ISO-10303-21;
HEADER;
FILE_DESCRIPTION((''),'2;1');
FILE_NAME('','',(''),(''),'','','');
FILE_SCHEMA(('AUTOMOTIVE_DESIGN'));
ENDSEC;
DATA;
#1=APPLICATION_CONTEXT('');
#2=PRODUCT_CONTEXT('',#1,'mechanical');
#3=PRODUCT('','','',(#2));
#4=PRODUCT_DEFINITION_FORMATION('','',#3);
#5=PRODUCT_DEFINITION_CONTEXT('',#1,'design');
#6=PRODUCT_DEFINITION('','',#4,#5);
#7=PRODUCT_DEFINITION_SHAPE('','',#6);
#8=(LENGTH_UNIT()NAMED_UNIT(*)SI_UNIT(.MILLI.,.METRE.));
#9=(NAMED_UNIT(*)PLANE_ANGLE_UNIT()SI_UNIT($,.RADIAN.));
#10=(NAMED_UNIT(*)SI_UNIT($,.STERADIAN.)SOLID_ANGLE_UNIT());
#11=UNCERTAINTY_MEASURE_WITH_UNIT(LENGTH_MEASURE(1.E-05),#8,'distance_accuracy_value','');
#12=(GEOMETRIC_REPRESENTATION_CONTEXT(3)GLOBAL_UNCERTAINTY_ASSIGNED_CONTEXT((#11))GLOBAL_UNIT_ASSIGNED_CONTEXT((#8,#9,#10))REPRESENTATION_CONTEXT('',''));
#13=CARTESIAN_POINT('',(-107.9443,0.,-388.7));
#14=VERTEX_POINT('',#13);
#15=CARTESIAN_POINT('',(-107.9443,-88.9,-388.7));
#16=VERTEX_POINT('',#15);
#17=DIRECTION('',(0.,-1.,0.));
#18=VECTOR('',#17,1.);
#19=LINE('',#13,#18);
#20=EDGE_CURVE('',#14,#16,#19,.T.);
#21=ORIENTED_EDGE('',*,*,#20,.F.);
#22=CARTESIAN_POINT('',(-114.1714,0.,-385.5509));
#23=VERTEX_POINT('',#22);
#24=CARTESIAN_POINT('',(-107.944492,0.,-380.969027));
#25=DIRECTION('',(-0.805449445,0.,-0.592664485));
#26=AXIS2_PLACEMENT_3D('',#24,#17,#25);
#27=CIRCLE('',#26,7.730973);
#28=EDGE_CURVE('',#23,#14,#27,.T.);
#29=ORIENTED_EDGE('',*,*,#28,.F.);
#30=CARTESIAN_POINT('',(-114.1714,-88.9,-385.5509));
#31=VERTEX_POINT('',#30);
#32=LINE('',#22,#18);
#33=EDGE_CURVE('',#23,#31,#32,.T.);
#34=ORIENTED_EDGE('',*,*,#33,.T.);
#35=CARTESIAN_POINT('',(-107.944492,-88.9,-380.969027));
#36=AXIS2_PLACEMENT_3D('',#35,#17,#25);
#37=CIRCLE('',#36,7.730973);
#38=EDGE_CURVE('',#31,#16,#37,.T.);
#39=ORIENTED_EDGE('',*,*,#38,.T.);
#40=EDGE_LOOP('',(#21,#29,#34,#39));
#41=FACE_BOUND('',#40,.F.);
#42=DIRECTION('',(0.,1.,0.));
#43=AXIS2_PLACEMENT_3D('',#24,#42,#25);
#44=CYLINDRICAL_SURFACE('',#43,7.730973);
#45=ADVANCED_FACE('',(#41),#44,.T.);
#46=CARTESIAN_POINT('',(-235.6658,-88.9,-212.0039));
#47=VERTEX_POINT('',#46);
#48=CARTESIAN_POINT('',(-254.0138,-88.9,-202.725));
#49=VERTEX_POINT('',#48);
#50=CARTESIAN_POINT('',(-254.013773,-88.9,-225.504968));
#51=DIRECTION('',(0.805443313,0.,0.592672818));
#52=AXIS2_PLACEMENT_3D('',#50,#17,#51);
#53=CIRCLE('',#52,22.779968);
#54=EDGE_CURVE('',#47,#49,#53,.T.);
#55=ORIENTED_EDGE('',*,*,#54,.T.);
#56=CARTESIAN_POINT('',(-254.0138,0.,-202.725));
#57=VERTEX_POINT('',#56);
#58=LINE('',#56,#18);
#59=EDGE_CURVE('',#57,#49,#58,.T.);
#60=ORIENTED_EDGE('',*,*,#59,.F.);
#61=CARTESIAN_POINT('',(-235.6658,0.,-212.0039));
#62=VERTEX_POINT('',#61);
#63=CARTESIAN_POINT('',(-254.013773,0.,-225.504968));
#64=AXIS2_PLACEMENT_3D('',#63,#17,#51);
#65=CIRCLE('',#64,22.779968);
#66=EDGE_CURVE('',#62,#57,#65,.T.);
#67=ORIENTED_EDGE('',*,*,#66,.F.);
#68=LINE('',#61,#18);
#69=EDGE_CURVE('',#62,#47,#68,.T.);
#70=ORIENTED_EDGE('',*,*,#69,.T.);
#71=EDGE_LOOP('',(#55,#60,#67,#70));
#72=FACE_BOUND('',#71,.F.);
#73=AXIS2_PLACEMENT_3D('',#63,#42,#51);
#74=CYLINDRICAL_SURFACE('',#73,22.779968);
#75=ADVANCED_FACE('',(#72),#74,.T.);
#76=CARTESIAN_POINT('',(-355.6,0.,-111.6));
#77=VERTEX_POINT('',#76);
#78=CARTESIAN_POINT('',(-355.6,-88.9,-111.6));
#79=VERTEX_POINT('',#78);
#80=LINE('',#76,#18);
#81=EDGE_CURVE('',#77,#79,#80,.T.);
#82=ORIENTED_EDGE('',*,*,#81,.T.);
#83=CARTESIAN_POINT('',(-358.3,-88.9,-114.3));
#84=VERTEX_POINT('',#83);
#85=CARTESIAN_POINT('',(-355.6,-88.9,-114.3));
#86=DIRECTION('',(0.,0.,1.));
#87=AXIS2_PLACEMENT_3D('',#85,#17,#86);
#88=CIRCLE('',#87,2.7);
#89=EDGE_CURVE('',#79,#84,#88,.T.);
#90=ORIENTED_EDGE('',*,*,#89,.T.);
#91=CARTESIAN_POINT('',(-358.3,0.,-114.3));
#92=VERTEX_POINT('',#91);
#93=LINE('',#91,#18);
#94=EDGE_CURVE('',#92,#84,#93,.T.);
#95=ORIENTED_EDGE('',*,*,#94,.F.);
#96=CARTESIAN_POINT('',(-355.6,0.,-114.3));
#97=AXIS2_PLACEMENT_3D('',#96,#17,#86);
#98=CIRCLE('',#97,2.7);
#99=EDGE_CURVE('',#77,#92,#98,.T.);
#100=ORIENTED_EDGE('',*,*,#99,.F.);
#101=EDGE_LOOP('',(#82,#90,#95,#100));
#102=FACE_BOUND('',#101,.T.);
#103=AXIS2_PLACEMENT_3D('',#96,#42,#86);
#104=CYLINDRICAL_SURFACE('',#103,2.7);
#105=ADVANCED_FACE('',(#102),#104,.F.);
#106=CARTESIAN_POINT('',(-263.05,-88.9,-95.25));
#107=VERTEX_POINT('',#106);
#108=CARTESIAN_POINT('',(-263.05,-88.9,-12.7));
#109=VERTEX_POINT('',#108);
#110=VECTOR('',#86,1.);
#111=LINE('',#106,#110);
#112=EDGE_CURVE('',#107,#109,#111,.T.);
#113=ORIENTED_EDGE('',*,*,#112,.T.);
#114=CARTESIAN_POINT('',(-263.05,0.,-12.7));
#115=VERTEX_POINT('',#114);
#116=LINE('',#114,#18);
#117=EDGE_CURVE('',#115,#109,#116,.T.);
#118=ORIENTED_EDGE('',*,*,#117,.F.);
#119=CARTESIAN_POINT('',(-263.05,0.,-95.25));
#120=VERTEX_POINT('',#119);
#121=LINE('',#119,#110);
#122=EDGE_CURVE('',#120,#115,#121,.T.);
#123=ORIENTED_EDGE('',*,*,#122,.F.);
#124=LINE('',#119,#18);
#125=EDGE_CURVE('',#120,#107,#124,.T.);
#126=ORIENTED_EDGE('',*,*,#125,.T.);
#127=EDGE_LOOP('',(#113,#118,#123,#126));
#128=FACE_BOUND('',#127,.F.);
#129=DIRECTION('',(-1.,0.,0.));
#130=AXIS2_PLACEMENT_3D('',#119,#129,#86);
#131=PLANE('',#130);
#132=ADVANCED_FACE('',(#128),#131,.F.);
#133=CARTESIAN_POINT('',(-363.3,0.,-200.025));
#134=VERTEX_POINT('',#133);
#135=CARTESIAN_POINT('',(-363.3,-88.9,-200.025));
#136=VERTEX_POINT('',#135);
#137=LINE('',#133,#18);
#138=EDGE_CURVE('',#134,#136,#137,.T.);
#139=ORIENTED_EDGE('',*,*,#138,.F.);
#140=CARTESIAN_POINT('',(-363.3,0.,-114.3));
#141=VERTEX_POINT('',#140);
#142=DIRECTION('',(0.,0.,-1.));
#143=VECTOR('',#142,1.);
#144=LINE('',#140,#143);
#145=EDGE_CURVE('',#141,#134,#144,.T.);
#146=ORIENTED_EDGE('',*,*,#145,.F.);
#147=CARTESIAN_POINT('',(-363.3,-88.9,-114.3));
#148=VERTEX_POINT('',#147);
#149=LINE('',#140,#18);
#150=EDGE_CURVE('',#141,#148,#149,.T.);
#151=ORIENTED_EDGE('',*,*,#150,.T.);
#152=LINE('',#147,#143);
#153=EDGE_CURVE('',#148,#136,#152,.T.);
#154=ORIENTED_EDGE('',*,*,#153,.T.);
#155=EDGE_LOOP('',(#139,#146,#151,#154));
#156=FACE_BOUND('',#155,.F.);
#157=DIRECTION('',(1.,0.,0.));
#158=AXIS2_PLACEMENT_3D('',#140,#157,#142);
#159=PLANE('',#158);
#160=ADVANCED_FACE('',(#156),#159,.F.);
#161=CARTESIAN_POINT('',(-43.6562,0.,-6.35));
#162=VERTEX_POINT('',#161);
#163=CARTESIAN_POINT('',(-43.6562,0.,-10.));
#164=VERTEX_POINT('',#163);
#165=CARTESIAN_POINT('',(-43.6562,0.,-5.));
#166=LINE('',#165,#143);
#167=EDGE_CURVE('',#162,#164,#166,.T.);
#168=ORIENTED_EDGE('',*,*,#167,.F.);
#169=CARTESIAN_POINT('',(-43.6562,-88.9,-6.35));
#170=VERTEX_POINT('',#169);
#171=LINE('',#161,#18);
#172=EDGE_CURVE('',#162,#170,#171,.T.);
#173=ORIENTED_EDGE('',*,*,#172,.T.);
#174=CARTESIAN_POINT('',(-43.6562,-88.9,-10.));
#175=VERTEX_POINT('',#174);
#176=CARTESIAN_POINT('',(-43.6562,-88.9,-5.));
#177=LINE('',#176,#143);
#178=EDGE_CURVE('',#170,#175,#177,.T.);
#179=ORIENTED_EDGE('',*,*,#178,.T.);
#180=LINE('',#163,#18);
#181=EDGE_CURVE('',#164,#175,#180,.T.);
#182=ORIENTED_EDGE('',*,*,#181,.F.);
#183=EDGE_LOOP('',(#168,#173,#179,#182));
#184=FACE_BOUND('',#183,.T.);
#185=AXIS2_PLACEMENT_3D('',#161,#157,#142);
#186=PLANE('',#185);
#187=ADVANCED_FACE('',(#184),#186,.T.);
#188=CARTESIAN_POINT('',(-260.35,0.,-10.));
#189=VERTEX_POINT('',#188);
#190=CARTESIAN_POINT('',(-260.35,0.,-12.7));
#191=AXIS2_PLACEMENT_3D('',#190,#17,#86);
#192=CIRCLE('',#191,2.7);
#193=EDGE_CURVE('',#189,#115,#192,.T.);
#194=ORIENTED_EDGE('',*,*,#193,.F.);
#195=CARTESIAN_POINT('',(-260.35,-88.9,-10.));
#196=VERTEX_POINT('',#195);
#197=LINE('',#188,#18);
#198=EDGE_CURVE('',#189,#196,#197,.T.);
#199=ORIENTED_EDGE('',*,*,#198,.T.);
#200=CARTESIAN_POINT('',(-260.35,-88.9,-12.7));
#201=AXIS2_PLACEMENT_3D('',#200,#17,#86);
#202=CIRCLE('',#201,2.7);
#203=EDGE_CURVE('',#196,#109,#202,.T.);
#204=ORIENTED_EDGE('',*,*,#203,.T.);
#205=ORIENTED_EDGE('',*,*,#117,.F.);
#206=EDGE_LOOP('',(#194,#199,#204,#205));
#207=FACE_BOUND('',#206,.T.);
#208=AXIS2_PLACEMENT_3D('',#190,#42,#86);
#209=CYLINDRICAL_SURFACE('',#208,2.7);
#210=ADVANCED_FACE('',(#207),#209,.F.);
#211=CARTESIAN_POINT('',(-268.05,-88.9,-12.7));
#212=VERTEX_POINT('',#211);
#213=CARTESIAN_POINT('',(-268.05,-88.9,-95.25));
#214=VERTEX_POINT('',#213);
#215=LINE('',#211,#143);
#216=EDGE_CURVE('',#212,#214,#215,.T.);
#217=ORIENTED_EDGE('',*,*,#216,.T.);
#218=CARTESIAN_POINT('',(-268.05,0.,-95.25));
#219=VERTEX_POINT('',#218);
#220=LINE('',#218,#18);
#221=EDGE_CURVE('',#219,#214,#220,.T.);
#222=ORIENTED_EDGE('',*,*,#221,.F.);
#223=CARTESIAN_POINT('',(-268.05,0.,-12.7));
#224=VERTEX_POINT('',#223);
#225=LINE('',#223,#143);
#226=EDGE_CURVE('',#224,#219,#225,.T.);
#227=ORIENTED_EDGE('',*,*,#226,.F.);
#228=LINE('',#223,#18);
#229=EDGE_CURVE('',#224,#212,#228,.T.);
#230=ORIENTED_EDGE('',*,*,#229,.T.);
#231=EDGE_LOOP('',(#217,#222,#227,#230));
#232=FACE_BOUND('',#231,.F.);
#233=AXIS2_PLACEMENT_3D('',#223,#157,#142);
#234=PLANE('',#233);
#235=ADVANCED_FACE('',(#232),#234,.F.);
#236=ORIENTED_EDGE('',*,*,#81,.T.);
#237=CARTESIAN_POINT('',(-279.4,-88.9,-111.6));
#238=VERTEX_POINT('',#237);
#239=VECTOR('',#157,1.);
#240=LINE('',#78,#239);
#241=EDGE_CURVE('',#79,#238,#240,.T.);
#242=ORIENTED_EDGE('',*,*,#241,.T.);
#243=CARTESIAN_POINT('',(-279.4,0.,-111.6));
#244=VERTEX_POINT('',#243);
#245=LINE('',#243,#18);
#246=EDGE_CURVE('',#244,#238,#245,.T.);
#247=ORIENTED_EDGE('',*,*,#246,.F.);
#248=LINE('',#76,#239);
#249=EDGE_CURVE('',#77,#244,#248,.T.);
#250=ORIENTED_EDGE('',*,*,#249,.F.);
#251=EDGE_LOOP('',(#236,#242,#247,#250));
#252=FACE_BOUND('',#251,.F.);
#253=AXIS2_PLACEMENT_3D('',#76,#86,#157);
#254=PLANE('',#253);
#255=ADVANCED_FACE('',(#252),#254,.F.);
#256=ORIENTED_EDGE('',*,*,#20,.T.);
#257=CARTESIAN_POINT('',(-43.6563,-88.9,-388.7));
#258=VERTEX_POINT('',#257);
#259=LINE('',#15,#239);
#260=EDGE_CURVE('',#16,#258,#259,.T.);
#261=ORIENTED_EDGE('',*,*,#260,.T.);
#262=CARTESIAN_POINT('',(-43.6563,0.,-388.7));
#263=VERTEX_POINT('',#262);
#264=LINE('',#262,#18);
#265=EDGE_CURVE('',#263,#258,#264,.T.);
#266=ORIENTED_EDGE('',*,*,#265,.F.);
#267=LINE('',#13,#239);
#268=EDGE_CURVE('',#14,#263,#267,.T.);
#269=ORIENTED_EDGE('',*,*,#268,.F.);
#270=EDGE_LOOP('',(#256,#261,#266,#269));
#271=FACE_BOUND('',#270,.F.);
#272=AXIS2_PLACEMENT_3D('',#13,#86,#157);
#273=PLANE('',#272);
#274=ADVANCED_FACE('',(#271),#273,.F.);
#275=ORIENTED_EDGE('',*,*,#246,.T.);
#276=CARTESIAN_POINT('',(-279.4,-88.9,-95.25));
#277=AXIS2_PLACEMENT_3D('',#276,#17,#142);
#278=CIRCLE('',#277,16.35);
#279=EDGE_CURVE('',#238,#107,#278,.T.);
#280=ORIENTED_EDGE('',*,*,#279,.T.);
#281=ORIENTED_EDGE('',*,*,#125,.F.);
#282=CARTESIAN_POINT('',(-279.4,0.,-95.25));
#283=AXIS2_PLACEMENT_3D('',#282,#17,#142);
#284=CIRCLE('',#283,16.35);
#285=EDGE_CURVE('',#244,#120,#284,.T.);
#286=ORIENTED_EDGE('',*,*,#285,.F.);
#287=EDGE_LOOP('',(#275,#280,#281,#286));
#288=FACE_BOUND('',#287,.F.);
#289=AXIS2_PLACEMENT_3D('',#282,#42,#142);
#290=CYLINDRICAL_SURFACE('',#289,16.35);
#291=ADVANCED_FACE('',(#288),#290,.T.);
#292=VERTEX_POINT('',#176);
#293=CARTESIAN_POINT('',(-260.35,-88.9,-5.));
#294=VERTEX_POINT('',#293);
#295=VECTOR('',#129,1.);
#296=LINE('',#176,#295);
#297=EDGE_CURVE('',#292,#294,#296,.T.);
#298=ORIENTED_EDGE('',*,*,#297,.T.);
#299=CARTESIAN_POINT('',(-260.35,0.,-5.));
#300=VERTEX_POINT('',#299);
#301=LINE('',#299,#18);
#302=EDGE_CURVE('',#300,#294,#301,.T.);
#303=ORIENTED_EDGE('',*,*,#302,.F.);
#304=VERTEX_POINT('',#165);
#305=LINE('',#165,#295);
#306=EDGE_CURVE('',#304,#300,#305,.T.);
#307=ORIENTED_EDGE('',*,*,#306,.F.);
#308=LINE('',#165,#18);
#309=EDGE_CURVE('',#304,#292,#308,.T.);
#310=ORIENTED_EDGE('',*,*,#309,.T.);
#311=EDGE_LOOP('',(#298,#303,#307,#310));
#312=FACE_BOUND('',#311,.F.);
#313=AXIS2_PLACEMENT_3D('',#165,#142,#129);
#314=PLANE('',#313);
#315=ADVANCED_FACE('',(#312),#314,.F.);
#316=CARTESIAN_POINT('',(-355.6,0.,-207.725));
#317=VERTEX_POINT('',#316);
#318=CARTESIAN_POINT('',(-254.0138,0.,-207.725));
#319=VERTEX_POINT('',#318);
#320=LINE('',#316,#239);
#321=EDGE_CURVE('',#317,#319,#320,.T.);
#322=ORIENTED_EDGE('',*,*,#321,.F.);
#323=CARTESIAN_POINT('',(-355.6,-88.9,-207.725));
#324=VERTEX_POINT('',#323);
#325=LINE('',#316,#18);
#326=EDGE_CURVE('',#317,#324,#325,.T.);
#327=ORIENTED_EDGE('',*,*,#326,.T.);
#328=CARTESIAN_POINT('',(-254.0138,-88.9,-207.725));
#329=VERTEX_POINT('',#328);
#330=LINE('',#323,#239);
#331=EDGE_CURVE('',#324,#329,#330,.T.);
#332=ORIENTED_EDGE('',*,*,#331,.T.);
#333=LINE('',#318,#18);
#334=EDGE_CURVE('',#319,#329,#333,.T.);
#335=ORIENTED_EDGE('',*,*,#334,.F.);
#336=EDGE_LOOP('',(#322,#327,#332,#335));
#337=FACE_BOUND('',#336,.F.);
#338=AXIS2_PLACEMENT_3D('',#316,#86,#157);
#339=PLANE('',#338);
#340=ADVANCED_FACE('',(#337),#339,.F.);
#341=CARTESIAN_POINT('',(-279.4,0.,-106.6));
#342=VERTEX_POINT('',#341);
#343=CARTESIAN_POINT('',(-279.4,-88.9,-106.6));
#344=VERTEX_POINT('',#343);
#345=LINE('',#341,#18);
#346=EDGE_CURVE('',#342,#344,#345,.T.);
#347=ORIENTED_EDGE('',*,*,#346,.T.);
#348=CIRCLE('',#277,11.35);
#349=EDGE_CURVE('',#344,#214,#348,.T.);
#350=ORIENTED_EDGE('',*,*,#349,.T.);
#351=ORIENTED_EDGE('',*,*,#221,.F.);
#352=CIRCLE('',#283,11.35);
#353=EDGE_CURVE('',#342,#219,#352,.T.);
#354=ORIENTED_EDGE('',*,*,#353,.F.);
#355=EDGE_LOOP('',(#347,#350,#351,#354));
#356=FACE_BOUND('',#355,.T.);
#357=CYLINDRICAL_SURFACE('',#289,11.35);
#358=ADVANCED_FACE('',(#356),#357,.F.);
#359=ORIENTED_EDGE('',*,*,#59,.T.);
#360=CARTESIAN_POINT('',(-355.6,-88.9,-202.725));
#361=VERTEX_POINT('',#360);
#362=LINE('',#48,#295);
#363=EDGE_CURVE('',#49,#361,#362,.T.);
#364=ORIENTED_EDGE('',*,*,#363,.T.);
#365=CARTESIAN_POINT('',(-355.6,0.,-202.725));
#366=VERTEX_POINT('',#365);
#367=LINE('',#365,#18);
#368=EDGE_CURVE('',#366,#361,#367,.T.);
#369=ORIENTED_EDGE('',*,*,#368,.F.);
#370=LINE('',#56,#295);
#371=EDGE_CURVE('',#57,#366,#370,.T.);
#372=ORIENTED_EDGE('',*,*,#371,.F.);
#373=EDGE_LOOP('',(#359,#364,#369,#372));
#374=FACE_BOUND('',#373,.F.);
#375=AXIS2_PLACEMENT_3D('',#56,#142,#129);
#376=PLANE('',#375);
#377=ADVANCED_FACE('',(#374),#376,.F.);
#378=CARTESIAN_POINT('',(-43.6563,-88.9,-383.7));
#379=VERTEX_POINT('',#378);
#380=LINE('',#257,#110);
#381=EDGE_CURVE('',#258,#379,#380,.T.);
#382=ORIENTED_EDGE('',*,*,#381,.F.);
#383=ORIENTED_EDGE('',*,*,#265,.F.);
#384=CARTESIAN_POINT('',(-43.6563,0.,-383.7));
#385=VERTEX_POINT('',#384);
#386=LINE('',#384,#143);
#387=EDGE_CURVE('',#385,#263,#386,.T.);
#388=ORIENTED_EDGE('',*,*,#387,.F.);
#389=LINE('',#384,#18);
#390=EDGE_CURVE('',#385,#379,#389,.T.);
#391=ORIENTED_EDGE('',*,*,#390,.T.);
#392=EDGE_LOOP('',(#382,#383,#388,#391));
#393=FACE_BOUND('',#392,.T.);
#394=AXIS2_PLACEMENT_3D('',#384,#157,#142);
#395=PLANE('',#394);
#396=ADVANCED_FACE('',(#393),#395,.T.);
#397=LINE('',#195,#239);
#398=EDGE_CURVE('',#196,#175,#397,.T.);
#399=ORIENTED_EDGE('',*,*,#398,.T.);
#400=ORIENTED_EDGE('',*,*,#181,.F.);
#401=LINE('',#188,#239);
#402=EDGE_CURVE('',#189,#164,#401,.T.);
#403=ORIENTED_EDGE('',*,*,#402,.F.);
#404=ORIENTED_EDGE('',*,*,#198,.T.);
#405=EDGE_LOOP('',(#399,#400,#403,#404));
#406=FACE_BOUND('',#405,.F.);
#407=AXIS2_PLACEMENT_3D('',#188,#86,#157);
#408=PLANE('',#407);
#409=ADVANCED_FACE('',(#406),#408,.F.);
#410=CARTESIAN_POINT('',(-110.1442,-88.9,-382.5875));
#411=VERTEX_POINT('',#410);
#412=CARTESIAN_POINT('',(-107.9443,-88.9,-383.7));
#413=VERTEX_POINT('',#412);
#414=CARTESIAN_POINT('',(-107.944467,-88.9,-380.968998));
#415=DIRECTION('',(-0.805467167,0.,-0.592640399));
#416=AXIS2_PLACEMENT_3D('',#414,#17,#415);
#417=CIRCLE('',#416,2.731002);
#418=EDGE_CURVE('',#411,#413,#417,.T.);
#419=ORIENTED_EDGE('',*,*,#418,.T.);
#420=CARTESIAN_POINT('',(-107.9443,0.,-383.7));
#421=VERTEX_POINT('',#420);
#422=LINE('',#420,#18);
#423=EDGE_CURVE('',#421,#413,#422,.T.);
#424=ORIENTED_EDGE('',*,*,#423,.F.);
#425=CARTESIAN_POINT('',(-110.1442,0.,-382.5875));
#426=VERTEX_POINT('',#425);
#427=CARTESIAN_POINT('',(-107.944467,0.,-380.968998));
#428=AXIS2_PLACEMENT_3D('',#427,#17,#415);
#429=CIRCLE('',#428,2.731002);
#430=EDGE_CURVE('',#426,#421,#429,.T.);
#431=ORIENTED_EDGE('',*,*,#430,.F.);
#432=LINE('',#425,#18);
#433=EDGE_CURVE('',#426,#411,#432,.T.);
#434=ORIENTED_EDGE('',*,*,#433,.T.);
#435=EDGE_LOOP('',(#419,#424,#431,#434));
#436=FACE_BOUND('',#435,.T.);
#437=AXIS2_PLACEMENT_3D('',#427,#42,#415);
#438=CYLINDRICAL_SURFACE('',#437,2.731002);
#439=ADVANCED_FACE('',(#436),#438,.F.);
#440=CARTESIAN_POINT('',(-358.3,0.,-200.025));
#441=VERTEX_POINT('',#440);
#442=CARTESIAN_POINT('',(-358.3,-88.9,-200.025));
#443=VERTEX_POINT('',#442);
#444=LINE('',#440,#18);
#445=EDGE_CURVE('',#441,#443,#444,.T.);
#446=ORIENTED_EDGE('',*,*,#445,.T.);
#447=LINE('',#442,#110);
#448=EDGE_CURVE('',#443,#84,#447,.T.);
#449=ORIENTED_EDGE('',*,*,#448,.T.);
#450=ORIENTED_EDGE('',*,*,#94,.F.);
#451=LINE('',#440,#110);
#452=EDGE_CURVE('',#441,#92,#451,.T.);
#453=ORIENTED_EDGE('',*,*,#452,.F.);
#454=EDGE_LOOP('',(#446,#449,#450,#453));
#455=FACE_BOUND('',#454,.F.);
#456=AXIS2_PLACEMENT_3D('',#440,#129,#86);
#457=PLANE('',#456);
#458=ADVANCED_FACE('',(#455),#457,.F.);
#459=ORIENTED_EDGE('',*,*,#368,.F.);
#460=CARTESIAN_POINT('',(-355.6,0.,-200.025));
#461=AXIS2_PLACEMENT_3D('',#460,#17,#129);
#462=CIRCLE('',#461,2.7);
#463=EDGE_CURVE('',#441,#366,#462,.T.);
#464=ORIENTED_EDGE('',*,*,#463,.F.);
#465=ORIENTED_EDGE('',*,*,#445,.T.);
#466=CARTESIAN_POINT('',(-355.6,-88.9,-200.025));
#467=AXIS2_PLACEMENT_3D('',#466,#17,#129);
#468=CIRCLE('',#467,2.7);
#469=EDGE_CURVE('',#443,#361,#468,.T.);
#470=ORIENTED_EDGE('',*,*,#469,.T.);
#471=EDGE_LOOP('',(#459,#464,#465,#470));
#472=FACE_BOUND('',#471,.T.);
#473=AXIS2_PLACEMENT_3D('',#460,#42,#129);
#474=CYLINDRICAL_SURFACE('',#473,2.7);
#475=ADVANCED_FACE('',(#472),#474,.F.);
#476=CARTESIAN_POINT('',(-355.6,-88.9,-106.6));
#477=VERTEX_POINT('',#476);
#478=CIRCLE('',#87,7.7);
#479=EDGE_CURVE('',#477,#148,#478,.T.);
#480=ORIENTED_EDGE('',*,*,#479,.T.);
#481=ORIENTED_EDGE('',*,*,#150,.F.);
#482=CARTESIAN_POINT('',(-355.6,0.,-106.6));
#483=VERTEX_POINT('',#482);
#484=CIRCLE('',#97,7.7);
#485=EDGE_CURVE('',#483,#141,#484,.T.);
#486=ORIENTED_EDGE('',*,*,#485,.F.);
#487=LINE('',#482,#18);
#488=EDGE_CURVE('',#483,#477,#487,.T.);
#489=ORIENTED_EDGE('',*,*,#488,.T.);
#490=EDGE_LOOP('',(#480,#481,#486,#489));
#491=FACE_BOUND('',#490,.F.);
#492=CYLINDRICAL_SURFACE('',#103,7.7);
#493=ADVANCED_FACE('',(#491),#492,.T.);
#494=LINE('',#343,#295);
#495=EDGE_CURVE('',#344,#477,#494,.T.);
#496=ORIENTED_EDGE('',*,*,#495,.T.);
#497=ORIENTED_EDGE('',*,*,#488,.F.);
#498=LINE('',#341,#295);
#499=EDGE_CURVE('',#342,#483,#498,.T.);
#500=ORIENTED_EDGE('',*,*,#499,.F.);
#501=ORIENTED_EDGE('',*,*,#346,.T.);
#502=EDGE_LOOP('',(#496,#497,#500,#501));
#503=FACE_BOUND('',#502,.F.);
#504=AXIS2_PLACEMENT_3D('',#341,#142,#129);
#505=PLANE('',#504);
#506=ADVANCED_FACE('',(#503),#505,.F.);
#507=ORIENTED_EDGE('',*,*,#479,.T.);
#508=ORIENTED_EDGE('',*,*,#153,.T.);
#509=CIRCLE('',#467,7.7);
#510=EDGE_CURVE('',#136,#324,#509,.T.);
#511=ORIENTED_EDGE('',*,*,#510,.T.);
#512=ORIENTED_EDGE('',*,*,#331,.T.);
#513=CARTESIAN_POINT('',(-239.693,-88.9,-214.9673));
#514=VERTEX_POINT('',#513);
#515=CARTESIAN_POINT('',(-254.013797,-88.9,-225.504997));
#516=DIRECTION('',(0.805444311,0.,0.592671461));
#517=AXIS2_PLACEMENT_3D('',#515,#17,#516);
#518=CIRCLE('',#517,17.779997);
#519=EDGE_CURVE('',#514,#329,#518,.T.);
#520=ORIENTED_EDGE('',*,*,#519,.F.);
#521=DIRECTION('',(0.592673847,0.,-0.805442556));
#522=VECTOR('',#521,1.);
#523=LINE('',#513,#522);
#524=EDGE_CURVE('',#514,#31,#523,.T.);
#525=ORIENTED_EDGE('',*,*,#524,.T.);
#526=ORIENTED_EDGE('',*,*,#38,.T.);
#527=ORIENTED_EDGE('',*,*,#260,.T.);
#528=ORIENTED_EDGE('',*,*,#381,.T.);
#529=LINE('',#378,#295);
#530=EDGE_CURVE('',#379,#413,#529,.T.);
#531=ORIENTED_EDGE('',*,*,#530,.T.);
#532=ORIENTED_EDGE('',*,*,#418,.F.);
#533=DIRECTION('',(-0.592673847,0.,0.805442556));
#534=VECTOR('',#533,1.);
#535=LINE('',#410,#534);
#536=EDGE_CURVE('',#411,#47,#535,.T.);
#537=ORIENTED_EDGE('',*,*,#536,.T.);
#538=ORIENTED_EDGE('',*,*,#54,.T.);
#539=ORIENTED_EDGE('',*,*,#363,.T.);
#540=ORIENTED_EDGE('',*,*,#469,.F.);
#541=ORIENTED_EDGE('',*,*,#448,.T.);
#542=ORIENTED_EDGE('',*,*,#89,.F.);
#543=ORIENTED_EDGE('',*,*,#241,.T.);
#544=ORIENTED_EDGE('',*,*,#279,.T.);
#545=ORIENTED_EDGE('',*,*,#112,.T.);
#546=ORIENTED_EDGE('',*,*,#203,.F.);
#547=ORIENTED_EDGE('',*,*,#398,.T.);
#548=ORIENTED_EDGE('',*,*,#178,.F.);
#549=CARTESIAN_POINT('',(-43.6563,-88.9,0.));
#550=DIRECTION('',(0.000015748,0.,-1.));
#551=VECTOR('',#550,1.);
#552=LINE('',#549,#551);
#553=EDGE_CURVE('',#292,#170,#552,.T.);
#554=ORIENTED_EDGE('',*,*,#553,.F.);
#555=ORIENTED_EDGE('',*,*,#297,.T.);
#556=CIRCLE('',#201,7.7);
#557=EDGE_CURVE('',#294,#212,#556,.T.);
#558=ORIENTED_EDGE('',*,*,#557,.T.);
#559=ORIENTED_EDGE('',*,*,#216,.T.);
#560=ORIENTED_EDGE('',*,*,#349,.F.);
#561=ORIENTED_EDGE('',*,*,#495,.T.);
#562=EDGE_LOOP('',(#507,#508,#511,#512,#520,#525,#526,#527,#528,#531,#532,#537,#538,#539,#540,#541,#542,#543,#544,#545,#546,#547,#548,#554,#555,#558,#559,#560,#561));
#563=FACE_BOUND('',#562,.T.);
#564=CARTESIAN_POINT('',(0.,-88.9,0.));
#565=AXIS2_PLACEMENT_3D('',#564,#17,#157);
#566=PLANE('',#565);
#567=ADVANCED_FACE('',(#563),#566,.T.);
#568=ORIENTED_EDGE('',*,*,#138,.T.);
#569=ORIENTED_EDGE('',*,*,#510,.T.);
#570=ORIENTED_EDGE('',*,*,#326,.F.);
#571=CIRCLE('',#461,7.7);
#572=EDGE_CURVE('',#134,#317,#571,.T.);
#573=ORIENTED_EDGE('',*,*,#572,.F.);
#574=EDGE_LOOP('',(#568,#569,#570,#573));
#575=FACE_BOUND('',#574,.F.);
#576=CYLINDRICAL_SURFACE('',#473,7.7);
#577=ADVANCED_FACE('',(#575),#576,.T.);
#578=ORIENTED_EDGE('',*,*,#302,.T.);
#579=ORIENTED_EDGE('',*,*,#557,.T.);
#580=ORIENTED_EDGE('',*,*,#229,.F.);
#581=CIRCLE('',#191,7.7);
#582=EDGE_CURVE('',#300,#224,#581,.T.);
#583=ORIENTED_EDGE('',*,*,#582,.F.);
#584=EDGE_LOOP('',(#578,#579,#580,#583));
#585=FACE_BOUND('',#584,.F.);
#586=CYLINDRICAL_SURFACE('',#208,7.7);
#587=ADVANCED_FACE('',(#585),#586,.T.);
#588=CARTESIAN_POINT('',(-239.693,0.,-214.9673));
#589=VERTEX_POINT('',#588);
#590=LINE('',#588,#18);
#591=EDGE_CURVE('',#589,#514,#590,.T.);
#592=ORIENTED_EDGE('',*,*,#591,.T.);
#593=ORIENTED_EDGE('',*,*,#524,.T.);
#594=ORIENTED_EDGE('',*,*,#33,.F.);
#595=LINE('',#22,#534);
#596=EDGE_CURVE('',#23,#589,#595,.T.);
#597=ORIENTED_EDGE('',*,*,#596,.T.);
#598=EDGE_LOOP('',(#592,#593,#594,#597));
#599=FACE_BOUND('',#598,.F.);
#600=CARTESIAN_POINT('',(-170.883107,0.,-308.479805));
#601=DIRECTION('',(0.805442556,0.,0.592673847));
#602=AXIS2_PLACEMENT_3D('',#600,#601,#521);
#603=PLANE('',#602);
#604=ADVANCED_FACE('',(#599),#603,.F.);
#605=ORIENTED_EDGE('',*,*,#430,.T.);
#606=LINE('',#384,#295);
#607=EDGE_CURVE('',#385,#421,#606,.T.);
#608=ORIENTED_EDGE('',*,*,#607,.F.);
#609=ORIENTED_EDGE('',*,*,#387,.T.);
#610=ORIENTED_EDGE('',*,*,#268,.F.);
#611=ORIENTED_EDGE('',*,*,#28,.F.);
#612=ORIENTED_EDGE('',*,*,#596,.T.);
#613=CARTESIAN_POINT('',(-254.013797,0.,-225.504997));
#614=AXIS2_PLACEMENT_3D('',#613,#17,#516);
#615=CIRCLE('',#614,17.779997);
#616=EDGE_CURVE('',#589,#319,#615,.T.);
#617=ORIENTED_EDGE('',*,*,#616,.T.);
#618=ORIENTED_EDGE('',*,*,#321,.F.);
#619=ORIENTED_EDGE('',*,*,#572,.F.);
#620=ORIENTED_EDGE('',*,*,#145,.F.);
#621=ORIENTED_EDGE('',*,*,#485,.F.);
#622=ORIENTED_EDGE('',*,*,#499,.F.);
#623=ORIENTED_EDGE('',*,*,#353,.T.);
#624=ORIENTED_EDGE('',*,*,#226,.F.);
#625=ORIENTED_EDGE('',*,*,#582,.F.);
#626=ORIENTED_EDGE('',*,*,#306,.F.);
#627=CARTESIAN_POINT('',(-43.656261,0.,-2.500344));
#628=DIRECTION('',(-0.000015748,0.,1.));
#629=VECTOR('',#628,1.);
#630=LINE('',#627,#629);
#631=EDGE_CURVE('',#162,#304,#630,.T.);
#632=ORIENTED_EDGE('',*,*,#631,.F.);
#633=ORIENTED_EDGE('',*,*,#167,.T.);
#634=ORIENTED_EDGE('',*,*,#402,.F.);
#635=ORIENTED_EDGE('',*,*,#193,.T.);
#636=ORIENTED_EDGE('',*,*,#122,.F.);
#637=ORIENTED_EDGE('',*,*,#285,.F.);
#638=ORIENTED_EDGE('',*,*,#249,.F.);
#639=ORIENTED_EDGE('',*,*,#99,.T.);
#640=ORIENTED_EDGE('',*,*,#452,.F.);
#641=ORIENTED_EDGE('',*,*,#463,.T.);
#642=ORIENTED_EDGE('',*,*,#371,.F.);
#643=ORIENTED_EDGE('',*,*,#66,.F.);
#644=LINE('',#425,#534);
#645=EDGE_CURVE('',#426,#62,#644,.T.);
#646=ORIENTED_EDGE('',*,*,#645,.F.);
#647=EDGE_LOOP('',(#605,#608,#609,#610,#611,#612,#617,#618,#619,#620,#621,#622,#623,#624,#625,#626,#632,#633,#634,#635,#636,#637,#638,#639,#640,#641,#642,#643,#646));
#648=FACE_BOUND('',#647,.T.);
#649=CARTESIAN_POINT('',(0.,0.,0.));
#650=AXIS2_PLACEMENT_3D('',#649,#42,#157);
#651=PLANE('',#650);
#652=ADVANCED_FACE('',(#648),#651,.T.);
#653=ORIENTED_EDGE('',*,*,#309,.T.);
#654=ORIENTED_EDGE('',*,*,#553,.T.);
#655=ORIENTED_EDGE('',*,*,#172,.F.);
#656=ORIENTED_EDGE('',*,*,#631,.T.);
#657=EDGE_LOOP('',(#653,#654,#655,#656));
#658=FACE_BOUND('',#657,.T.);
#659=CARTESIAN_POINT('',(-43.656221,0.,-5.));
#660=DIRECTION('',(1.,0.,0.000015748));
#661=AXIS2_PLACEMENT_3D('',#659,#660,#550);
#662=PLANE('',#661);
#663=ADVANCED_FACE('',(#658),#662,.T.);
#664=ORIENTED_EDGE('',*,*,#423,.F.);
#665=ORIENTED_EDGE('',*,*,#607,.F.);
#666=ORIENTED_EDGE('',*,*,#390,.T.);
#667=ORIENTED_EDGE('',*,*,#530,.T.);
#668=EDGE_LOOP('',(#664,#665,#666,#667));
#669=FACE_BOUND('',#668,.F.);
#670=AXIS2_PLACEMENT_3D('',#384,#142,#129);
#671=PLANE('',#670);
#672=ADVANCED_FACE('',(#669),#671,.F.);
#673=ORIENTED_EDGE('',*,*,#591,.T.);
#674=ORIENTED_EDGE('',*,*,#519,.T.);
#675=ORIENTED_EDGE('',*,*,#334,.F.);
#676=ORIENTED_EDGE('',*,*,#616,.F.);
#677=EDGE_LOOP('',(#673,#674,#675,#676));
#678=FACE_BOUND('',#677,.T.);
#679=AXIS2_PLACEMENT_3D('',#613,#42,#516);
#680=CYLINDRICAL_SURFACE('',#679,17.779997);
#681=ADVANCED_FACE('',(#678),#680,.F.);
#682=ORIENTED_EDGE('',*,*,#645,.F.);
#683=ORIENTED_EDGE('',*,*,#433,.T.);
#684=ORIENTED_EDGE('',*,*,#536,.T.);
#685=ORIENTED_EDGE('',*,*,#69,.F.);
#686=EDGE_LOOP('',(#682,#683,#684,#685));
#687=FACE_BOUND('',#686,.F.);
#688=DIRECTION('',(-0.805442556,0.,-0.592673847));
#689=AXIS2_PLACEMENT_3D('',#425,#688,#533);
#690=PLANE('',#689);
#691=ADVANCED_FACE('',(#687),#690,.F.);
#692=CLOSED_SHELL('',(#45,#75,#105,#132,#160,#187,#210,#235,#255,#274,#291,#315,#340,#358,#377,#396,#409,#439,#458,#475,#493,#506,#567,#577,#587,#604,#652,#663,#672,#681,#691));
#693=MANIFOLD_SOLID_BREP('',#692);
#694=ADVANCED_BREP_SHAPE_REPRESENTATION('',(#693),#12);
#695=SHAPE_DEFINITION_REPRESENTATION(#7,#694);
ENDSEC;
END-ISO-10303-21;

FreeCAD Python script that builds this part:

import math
import FreeCAD as App
import Part
import Sketcher
Q = App.Units.Quantity


def edges_at(feature, points):
    """Names of the edges that pass closest to the given points."""
    edges = feature.Shape.Edges
    near = lambda p: min(range(len(edges)), key=lambda i: edges[i].distToShape(Part.Vertex(*p))[0])
    return sorted({f"Edge{near(p) + 1}" for p in points})


def add_polygon(sketch, points):
    """Adds a closed chain of lines whose ends are joined by coincident constraints."""
    first, n = sketch.GeometryCount, len(points)
    for a, b in zip(points, points[1:] + points[:1]):
        sketch.addGeometry(Part.LineSegment(App.Vector(*a, 0), App.Vector(*b, 0)), False)
    for i in range(n):
        sketch.addConstraint(Sketcher.Constraint("Coincident", first + i, 2, first + (i + 1) % n, 1))

doc = App.newDocument("Part")
body = doc.addObject("PartDesign::Body", "Body")

# Sketch on XZ plane
sketch1 = doc.addObject("Sketcher::SketchObject", "Sketch")
body.addObject(sketch1)
sketch1.AttachmentSupport = (doc.XZ_Plane, [""])
sketch1.MapMode = "FlatFace"
add_polygon(sketch1, [(-273.05, 0), (0, 0), (0, -393.7), (-114.3, -393.7), (-247.65, -212.725), (-368.3, -212.725), (-368.3, -101.6), (-273.05, -101.6)])  # lines 0-7
sketch1.addConstraint(Sketcher.Constraint("Horizontal", 0))
sketch1.addConstraint(Sketcher.Constraint("Vertical", 1))
sketch1.addConstraint(Sketcher.Constraint("Horizontal", 2))
sketch1.addConstraint(Sketcher.Constraint("Horizontal", 4))
sketch1.addConstraint(Sketcher.Constraint("Vertical", 5))
sketch1.addConstraint(Sketcher.Constraint("Horizontal", 6))
sketch1.addConstraint(Sketcher.Constraint("Vertical", 7))
sketch1.addConstraint(Sketcher.Constraint("Coincident", 0, 2, -1, 1))
sketch1.addConstraint(Sketcher.Constraint("DistanceY", 7, 1, 7, 2, Q("4 in")))
sketch1.addConstraint(Sketcher.Constraint("DistanceX", 2, 2, 2, 1, Q("4.5 in")))
sketch1.addConstraint(Sketcher.Constraint("DistanceY", 1, 2, 1, 1, Q("15.5 in")))
sketch1.addConstraint(Sketcher.Constraint("DistanceX", 0, 1, 0, 2, Q("10.75 in")))
sketch1.addConstraint(Sketcher.Constraint("DistanceX", 6, 1, 6, 2, Q("3.75 in")))
sketch1.addConstraint(Sketcher.Constraint("DistanceY", 5, 1, 5, 2, Q("4.375 in")))
sketch1.addConstraint(Sketcher.Constraint("DistanceX", 3, 2, 2, 2, Q("5.25 in")))
pad1 = doc.addObject("PartDesign::Pad", "Pad")
body.addObject(pad1)
pad1.Profile = sketch1
pad1.Length = 5
pad1.Reversed = True
doc.recompute()

fillet = doc.addObject("PartDesign::Fillet", "Fillet")
body.addObject(fillet)
fillet.Base = (pad1, edges_at(pad1, [
    (-368.3, 2.5, -101.6),
    (-273.05, 2.5, 0),
    (-368.3, 2.5, -212.725),
    (-247.65, 2.5, -212.725),
    (-114.3, 2.5, -393.7),
    (0, 2.5, -393.7),
    (0, 2.5, 0),
]))
fillet.Radius = Q("0.5 in")
doc.recompute()

fillet2 = doc.addObject("PartDesign::Fillet", "Fillet001")
body.addObject(fillet2)
fillet2.Base = (fillet, edges_at(fillet, [(-273.05, 2.5, -101.6)]))
fillet2.Radius = Q("0.25 in")

# Sketch on XZ plane
sketch2 = doc.addObject("Sketcher::SketchObject", "Sketch001")
body.addObject(sketch2)
sketch2.AttachmentSupport = (doc.XZ_Plane, [""])
sketch2.MapMode = "FlatFace"
sketch2.AttachmentOffset = App.Placement(App.Vector(0, 0, -5), App.Rotation())
add_polygon(sketch2, [(-349.25, -195.2625), (-349.25, -119.0625), (-273.05, -119.0625), (-273.05, -195.2625)])  # lines 0-3
add_polygon(sketch2, [(-43.6562, -6.35), (-43.6563, 0), (-38.1, 0), (-38.1, -6.35)])  # lines 4-7
add_polygon(sketch2, [(-38.1, -387.35), (-38.1, -393.7), (-43.6563, -393.7), (-43.6563, -387.35)])  # lines 8-11
sketch2.addGeometry(Part.Circle(App.Vector(-98.0281, -104.775, 0), App.Vector(0, 0, 1), 4.3656), False)  # 12
sketch2.addGeometry(Part.Circle(App.Vector(-59.9281, -104.775, 0), App.Vector(0, 0, 1), 4.3656), False)  # 13
sketch2.addGeometry(Part.Circle(App.Vector(-98.0281, -288.925, 0), App.Vector(0, 0, 1), 4.3656), False)  # 14
sketch2.addGeometry(Part.Circle(App.Vector(-59.9281, -288.925, 0), App.Vector(0, 0, 1), 4.3656), False)  # 15
add_polygon(sketch2, [(-123.825, -234.95), (-123.825, -158.75), (-47.625, -158.75), (-47.625, -234.95)])  # lines 16-19
sketch2.addGeometry(Part.Circle(App.Vector(-42.6641, -365.125, 0), App.Vector(0, 0, 1), 5), False)  # 20
sketch2.addGeometry(Part.Circle(App.Vector(-42.6641, -28.575, 0), App.Vector(0, 0, 1), 5), False)  # 21
add_polygon(sketch2, [(-42.8625, -140.0969), (-42.8625, -127), (-38.1, -127), (-38.1, -140.0969)])  # lines 22-25
add_polygon(sketch2, [(-42.8625, -203.5969), (-42.8625, -190.5), (-38.1, -190.5), (-38.1, -203.5969)])  # lines 26-29
add_polygon(sketch2, [(-42.8625, -267.0969), (-42.8625, -254), (-38.1, -254), (-38.1, -267.0969)])  # lines 30-33
sketch2.addConstraint(Sketcher.Constraint("Vertical", 0))
sketch2.addConstraint(Sketcher.Constraint("Horizontal", 1))
sketch2.addConstraint(Sketcher.Constraint("Vertical", 2))
sketch2.addConstraint(Sketcher.Constraint("Horizontal", 3))
sketch2.addConstraint(Sketcher.Constraint("Vertical", 4))
sketch2.addConstraint(Sketcher.Constraint("Horizontal", 5))
sketch2.addConstraint(Sketcher.Constraint("Vertical", 6))
sketch2.addConstraint(Sketcher.Constraint("Horizontal", 7))
sketch2.addConstraint(Sketcher.Constraint("Vertical", 8))
sketch2.addConstraint(Sketcher.Constraint("Horizontal", 9))
sketch2.addConstraint(Sketcher.Constraint("Vertical", 10))
sketch2.addConstraint(Sketcher.Constraint("Horizontal", 11))
sketch2.addConstraint(Sketcher.Constraint("Vertical", 16))
sketch2.addConstraint(Sketcher.Constraint("Horizontal", 17))
sketch2.addConstraint(Sketcher.Constraint("Vertical", 18))
sketch2.addConstraint(Sketcher.Constraint("Horizontal", 19))
sketch2.addConstraint(Sketcher.Constraint("Vertical", 22))
sketch2.addConstraint(Sketcher.Constraint("Horizontal", 23))
sketch2.addConstraint(Sketcher.Constraint("Vertical", 24))
sketch2.addConstraint(Sketcher.Constraint("Horizontal", 25))
sketch2.addConstraint(Sketcher.Constraint("Vertical", 26))
sketch2.addConstraint(Sketcher.Constraint("Horizontal", 27))
sketch2.addConstraint(Sketcher.Constraint("Vertical", 28))
sketch2.addConstraint(Sketcher.Constraint("Horizontal", 29))
sketch2.addConstraint(Sketcher.Constraint("Vertical", 30))
sketch2.addConstraint(Sketcher.Constraint("Horizontal", 31))
sketch2.addConstraint(Sketcher.Constraint("Vertical", 32))
sketch2.addConstraint(Sketcher.Constraint("Horizontal", 33))
sketch2.addConstraint(Sketcher.Constraint("Equal", 12, 13))
sketch2.addConstraint(Sketcher.Constraint("Equal", 13, 14))
sketch2.addConstraint(Sketcher.Constraint("Equal", 14, 15))
sketch2.addConstraint(Sketcher.Constraint("Equal", 20, 21))
sketch2.addConstraint(Sketcher.Constraint("PointOnObject", 4, 2, -1))
sketch2.addConstraint(Sketcher.Constraint("Horizontal", 12, 3, 13, 3))
sketch2.addConstraint(Sketcher.Constraint("Horizontal", 14, 3, 15, 3))
sketch2.addConstraint(Sketcher.Constraint("Vertical", 12, 3, 14, 3))
sketch2.addConstraint(Sketcher.Constraint("Vertical", 13, 3, 15, 3))
sketch2.addConstraint(Sketcher.Constraint("Vertical", 20, 3, 21, 3))
sketch2.addConstraint(Sketcher.Constraint("Vertical", 6, 2, 8, 2))
sketch2.addConstraint(Sketcher.Constraint("Vertical", 7, 2, 9, 2))
sketch2.addConstraint(Sketcher.Constraint("Vertical", 11, 2, 23, 2))
sketch2.addConstraint(Sketcher.Constraint("Vertical", 25, 2, 26, 2))
sketch2.addConstraint(Sketcher.Constraint("Vertical", 24, 2, 27, 2))
sketch2.addConstraint(Sketcher.Constraint("Vertical", 29, 2, 30, 2))
sketch2.addConstraint(Sketcher.Constraint("Vertical", 28, 2, 31, 2))
sketch2.addConstraint(Sketcher.Constraint("Equal", 3, 17))
sketch2.addConstraint(Sketcher.Constraint("Equal", 19, 0))
sketch2.addConstraint(Sketcher.Constraint("Equal", 6, 8))
sketch2.addConstraint(Sketcher.Constraint("Equal", 2, 16))
sketch2.addConstraint(Sketcher.Constraint("Equal", 24, 26))
sketch2.addConstraint(Sketcher.Constraint("Equal", 28, 30))
sketch2.addConstraint(Sketcher.Constraint("DistanceX", 1, 1, 1, 2, Q("3 in")))
sketch2.addConstraint(Sketcher.Constraint("Diameter", 12, Q("0.343748 in")))
sketch2.addConstraint(Sketcher.Constraint("DistanceY", 22, 2, -1, 1, Q("5 in")))
sketch2.addConstraint(Sketcher.Constraint("DistanceY", 20, 3, 15, 3, Q("3 in")))
sketch2.addConstraint(Sketcher.Constraint("DistanceY", 13, 3, 21, 3, Q("3 in")))
sketch2.addConstraint(Sketcher.Constraint("Diameter", 20, Q("0.3937 in")))
sketch2.addConstraint(Sketcher.Constraint("DistanceY", 4, 1, 4, 2, Q("0.25 in")))
sketch2.addConstraint(Sketcher.Constraint("DistanceX", 5, 2, -1, 1, Q("1.5 in")))
sketch2.addConstraint(Sketcher.Constraint("DistanceX", 12, 3, 13, 3, Q("1.5 in")))
sketch2.addConstraint(Sketcher.Constraint("DistanceY", 26, 2, 22, 2, Q("2.5 in")))
sketch2.addConstraint(Sketcher.Constraint("DistanceY", 30, 2, 26, 2, Q("2.5 in")))
sketch2.addConstraint(Sketcher.Constraint("DistanceX", 5, 1, 5, 2, Q("0.218752 in")))
sketch2.addConstraint(Sketcher.Constraint("DistanceX", 23, 1, 23, 2, Q("0.1875 in")))
sketch2.addConstraint(Sketcher.Constraint("DistanceY", 22, 1, 22, 2, Q("0.5156299 in")))
sketch2.addConstraint(Sketcher.Constraint("DistanceY", 16, 2, -1, 1, Q("6.25 in")))
sketch2.addConstraint(Sketcher.Constraint("DistanceY", 14, 3, 12, 3, Q("7.25 in")))
sketch2.addConstraint(Sketcher.Constraint("DistanceX", 12, 3, -1, 1, Q("3.8593701 in")))
sketch2.addConstraint(Sketcher.Constraint("DistanceY", 21, 3, -1, 1, Q("1.125 in")))
sketch2.addConstraint(Sketcher.Constraint("DistanceX", 17, 2, -1, 1, Q("1.875 in")))
sketch2.addConstraint(Sketcher.Constraint("DistanceY", 8, 2, 20, 3, Q("1.125 in")))
sketch2.addConstraint(Sketcher.Constraint("DistanceX", 20, 3, -1, 1, Q("1.6797 in")))
sketch2.addConstraint(Sketcher.Constraint("DistanceX", 0, 2, -1, 1, Q("13.75 in")))
sketch2.addConstraint(Sketcher.Constraint("DistanceY", 0, 2, -1, 1, Q("4.6875 in")))
pocket1 = doc.addObject("PartDesign::Pocket", "Pocket")
body.addObject(pocket1)
pocket1.Profile = sketch2
pocket1.Type = "UpToFirst"
pocket1.Reversed = True
doc.recompute()

fillet3 = doc.addObject("PartDesign::Fillet", "Fillet002")
body.addObject(fillet3)
fillet3.Base = (pocket1, edges_at(pocket1, [
    (-349.25, 2.5, -119.062),
    (-123.825, 2.5, -158.75),
    (-349.25, 2.5, -195.262),
    (-123.825, 2.5, -234.95),
    (-273.05, 2.5, -195.262),
    (-47.625, 2.5, -234.95),
    (-273.05, 2.5, -119.062),
    (-47.625, 2.5, -158.75),
]))
fillet3.Radius = Q("0.140626 in")

# Sketch on XZ plane
sketch3 = doc.addObject("Sketcher::SketchObject", "Sketch002")
body.addObject(sketch3)
sketch3.AttachmentSupport = (doc.XZ_Plane, [""])
sketch3.MapMode = "FlatFace"
sketch3.AttachmentOffset = App.Placement(App.Vector(0, 0, -5), App.Rotation())
sketch3.addGeometry(Part.LineSegment(App.Vector(0, -174.625, 0), App.Vector(0, -219.075, 0)), False)
sketch3.addGeometry(Part.ArcOfCircle(Part.Circle(App.Vector(13.0969, -196.85, 0), App.Vector(0, 0, 1), 25.796888), math.radians(120.510285), math.radians(239.489715)), False)
sketch3.addConstraint(Sketcher.Constraint("Coincident", 0, 1, 1, 1))
sketch3.addConstraint(Sketcher.Constraint("Coincident", 1, 2, 0, 2))
sketch3.addConstraint(Sketcher.Constraint("Vertical", 0))
sketch3.addConstraint(Sketcher.Constraint("PointOnObject", 0, 1, -2))
sketch3.addConstraint(Sketcher.Constraint("Radius", 1, Q("1.0156299 in")))
sketch3.addConstraint(Sketcher.Constraint("DistanceY", 1, 3, 0, 1, Q("0.875 in")))
sketch3.addConstraint(Sketcher.Constraint("DistanceY", 1, 3, -1, 1, Q("7.75 in")))
pocket2 = doc.addObject("PartDesign::Pocket", "Pocket001")
body.addObject(pocket2)
pocket2.Profile = sketch3
pocket2.Type = "UpToFirst"
pocket2.Reversed = True
doc.recompute()

fillet4 = doc.addObject("PartDesign::Fillet", "Fillet003")
body.addObject(fillet4)
fillet4.Base = (pocket2, edges_at(pocket2, [(0, 2.5, -219.075), (0, 2.5, -174.625)]))
fillet4.Radius = Q("0.1875 in")

# Sketch on XZ plane
sketch4 = doc.addObject("Sketcher::SketchObject", "Sketch003")
body.addObject(sketch4)
sketch4.AttachmentSupport = (doc.XZ_Plane, [""])
sketch4.MapMode = "FlatFace"
sketch4.addGeometry(Part.LineSegment(App.Vector(-43.6562, -6.35, 0), App.Vector(-43.656221, -5, 0)), False)
sketch4.addGeometry(Part.LineSegment(App.Vector(-43.6562, -5, 0), App.Vector(-260.35, -5, 0)), False)
sketch4.addGeometry(Part.ArcOfCircle(Part.Circle(App.Vector(-260.35, -12.7, 0), App.Vector(0, 0, 1), 7.7), math.radians(90), math.radians(180)), False)
sketch4.addGeometry(Part.LineSegment(App.Vector(-268.05, -12.7, 0), App.Vector(-268.05, -95.25, 0)), False)
sketch4.addGeometry(Part.ArcOfCircle(Part.Circle(App.Vector(-279.4, -95.25, 0), App.Vector(0, 0, 1), 11.35), math.radians(-90), math.radians(0)), False)
sketch4.addGeometry(Part.LineSegment(App.Vector(-279.4, -106.6, 0), App.Vector(-355.6, -106.6, 0)), False)
sketch4.addGeometry(Part.ArcOfCircle(Part.Circle(App.Vector(-355.6, -114.3, 0), App.Vector(0, 0, 1), 7.7), math.radians(90), math.radians(180)), False)
sketch4.addGeometry(Part.LineSegment(App.Vector(-363.3, -114.3, 0), App.Vector(-363.3, -200.025, 0)), False)
sketch4.addGeometry(Part.ArcOfCircle(Part.Circle(App.Vector(-355.6, -200.025, 0), App.Vector(0, 0, 1), 7.7), math.radians(180), math.radians(270)), False)
sketch4.addGeometry(Part.LineSegment(App.Vector(-355.6, -207.725, 0), App.Vector(-254.0138, -207.725, 0)), False)
sketch4.addGeometry(Part.ArcOfCircle(Part.Circle(App.Vector(-254.0138, -225.505, 0), App.Vector(0, 0, 1), 17.780001), math.radians(36.346817), math.radians(90)), False)
sketch4.addGeometry(Part.LineSegment(App.Vector(-239.693, -214.9673, 0), App.Vector(-114.1714, -385.5509, 0)), False)
sketch4.addGeometry(Part.ArcOfCircle(Part.Circle(App.Vector(-107.9443, -380.9688, 0), App.Vector(0, 0, 1), 7.731262), math.radians(-143.653172), math.radians(-90)), False)
sketch4.addGeometry(Part.LineSegment(App.Vector(-107.9443, -388.7, 0), App.Vector(-43.6563, -388.7, 0)), False)
sketch4.addGeometry(Part.LineSegment(App.Vector(-43.6563, -388.7, 0), App.Vector(-43.6563, -383.7, 0)), False)
sketch4.addGeometry(Part.LineSegment(App.Vector(-43.6563, -383.7, 0), App.Vector(-107.9443, -383.7, 0)), False)
sketch4.addGeometry(Part.ArcOfCircle(Part.Circle(App.Vector(-107.9443, -380.9688, 0), App.Vector(0, 0, 1), 2.731254), math.radians(-143.654136), math.radians(-90)), False)
sketch4.addGeometry(Part.LineSegment(App.Vector(-110.1442, -382.5875, 0), App.Vector(-235.6658, -212.0039, 0)), False)
sketch4.addGeometry(Part.ArcOfCircle(Part.Circle(App.Vector(-254.0138, -225.505, 0), App.Vector(0, 0, 1), 22.780009), math.radians(36.346935), math.radians(90)), False)
sketch4.addGeometry(Part.LineSegment(App.Vector(-254.0138, -202.725, 0), App.Vector(-355.6, -202.725, 0)), False)
sketch4.addGeometry(Part.ArcOfCircle(Part.Circle(App.Vector(-355.6, -200.025, 0), App.Vector(0, 0, 1), 2.7), math.radians(180), math.radians(270)), False)
sketch4.addGeometry(Part.LineSegment(App.Vector(-358.3, -200.025, 0), App.Vector(-358.3, -114.3, 0)), False)
sketch4.addGeometry(Part.ArcOfCircle(Part.Circle(App.Vector(-355.6, -114.3, 0), App.Vector(0, 0, 1), 2.7), math.radians(90), math.radians(180)), False)
sketch4.addGeometry(Part.LineSegment(App.Vector(-355.6, -111.6, 0), App.Vector(-279.4, -111.6, 0)), False)
sketch4.addGeometry(Part.ArcOfCircle(Part.Circle(App.Vector(-279.4, -95.25, 0), App.Vector(0, 0, 1), 16.35), math.radians(-90), math.radians(0)), False)
sketch4.addGeometry(Part.LineSegment(App.Vector(-263.05, -95.25, 0), App.Vector(-263.05, -12.7, 0)), False)
sketch4.addGeometry(Part.ArcOfCircle(Part.Circle(App.Vector(-260.35, -12.7, 0), App.Vector(0, 0, 1), 2.7), math.radians(90), math.radians(180)), False)
sketch4.addGeometry(Part.LineSegment(App.Vector(-260.35, -10, 0), App.Vector(-43.6562, -10, 0)), False)
sketch4.addGeometry(Part.LineSegment(App.Vector(-43.6562, -10, 0), App.Vector(-43.6562, -6.35, 0)), False)
sketch4.addConstraint(Sketcher.Constraint("Coincident", 0, 2, 1, 1))
sketch4.addConstraint(Sketcher.Constraint("Tangent", 1, 2, 2, 1))
sketch4.addConstraint(Sketcher.Constraint("Tangent", 2, 2, 3, 1))
sketch4.addConstraint(Sketcher.Constraint("Tangent", 3, 2, 4, 2))
sketch4.addConstraint(Sketcher.Constraint("Tangent", 4, 1, 5, 1))
sketch4.addConstraint(Sketcher.Constraint("Tangent", 5, 2, 6, 1))
sketch4.addConstraint(Sketcher.Constraint("Tangent", 6, 2, 7, 1))
sketch4.addConstraint(Sketcher.Constraint("Tangent", 7, 2, 8, 1))
sketch4.addConstraint(Sketcher.Constraint("Tangent", 8, 2, 9, 1))
sketch4.addConstraint(Sketcher.Constraint("Tangent", 9, 2, 10, 2))
sketch4.addConstraint(Sketcher.Constraint("Tangent", 10, 1, 11, 1))
sketch4.addConstraint(Sketcher.Constraint("Tangent", 11, 2, 12, 1))
sketch4.addConstraint(Sketcher.Constraint("Tangent", 12, 2, 13, 1))
sketch4.addConstraint(Sketcher.Constraint("Coincident", 13, 2, 14, 1))
sketch4.addConstraint(Sketcher.Constraint("Coincident", 14, 2, 15, 1))
sketch4.addConstraint(Sketcher.Constraint("Tangent", 15, 2, 16, 2))
sketch4.addConstraint(Sketcher.Constraint("Tangent", 16, 1, 17, 1))
sketch4.addConstraint(Sketcher.Constraint("Tangent", 17, 2, 18, 1))
sketch4.addConstraint(Sketcher.Constraint("Tangent", 18, 2, 19, 1))
sketch4.addConstraint(Sketcher.Constraint("Tangent", 19, 2, 20, 2))
sketch4.addConstraint(Sketcher.Constraint("Tangent", 20, 1, 21, 1))
sketch4.addConstraint(Sketcher.Constraint("Tangent", 21, 2, 22, 2))
sketch4.addConstraint(Sketcher.Constraint("Tangent", 22, 1, 23, 1))
sketch4.addConstraint(Sketcher.Constraint("Tangent", 23, 2, 24, 1))
sketch4.addConstraint(Sketcher.Constraint("Tangent", 24, 2, 25, 1))
sketch4.addConstraint(Sketcher.Constraint("Tangent", 25, 2, 26, 2))
sketch4.addConstraint(Sketcher.Constraint("Tangent", 26, 1, 27, 1))
sketch4.addConstraint(Sketcher.Constraint("Coincident", 27, 2, 28, 1))
sketch4.addConstraint(Sketcher.Constraint("Coincident", 28, 2, 0, 1))
sketch4.addConstraint(Sketcher.Constraint("Vertical", 0))
sketch4.addConstraint(Sketcher.Constraint("Horizontal", 1))
sketch4.addConstraint(Sketcher.Constraint("Vertical", 3))
sketch4.addConstraint(Sketcher.Constraint("Horizontal", 5))
sketch4.addConstraint(Sketcher.Constraint("Vertical", 7))
sketch4.addConstraint(Sketcher.Constraint("Horizontal", 9))
sketch4.addConstraint(Sketcher.Constraint("Horizontal", 13))
sketch4.addConstraint(Sketcher.Constraint("Vertical", 14))
sketch4.addConstraint(Sketcher.Constraint("Horizontal", 15))
sketch4.addConstraint(Sketcher.Constraint("Horizontal", 19))
sketch4.addConstraint(Sketcher.Constraint("Vertical", 21))
sketch4.addConstraint(Sketcher.Constraint("Horizontal", 23))
sketch4.addConstraint(Sketcher.Constraint("Vertical", 25))
sketch4.addConstraint(Sketcher.Constraint("Horizontal", 27))
sketch4.addConstraint(Sketcher.Constraint("Vertical", 28))
sketch4.addConstraint(Sketcher.Constraint("Coincident", 16, 3, 12, 3))
sketch4.addConstraint(Sketcher.Constraint("Coincident", 18, 3, 10, 3))
sketch4.addConstraint(Sketcher.Constraint("Coincident", 20, 3, 8, 3))
sketch4.addConstraint(Sketcher.Constraint("Coincident", 22, 3, 6, 3))
sketch4.addConstraint(Sketcher.Constraint("Coincident", 24, 3, 4, 3))
sketch4.addConstraint(Sketcher.Constraint("Coincident", 26, 3, 2, 3))
sketch4.addConstraint(Sketcher.Constraint("Equal", 2, 6))
sketch4.addConstraint(Sketcher.Constraint("Equal", 6, 8))
sketch4.addConstraint(Sketcher.Constraint("Parallel", 11, 17))
sketch4.addConstraint(Sketcher.Constraint("Vertical", 0, 2, 13, 2))
sketch4.addConstraint(Sketcher.Constraint("Radius", 10, Q("0.7 in")))
sketch4.addConstraint(Sketcher.Constraint("DistanceX", 5, 2, 5, 1, Q("3 in")))
sketch4.addConstraint(Sketcher.Constraint("Radius", 12, 7.7313))
sketch4.addConstraint(Sketcher.Constraint("DistanceX", 4, 3, -1, 1, Q("11 in")))
sketch4.addConstraint(Sketcher.Constraint("DistanceY", 6, 3, 2, 3, Q("4 in")))
sketch4.addConstraint(Sketcher.Constraint("DistanceY", 3, 2, 3, 1, Q("3.25 in")))
sketch4.addConstraint(Sketcher.Constraint("DistanceY", 14, 1, 14, 2, 5.0))
sketch4.addConstraint(Sketcher.Constraint("DistanceY", 2, 3, -1, 1, Q("0.5 in")))
sketch4.addConstraint(Sketcher.Constraint("Radius", 20, Q("0.1063 in")))
sketch4.addConstraint(Sketcher.Constraint("DistanceX", 1, 2, 1, 1, Q("8.531252 in")))
sketch4.addConstraint(Sketcher.Constraint("DistanceY", 7, 2, 7, 1, Q("3.375 in")))
sketch4.addConstraint(Sketcher.Constraint("DistanceY", 28, 2, -1, 1, Q("0.25 in")))
sketch4.addConstraint(Sketcher.Constraint("DistanceY", 16, 1, -1, 1, Q("15.0625 in")))
sketch4.addConstraint(Sketcher.Constraint("DistanceY", 12, 2, 10, 3, Q("6.425 in")))
sketch4.addConstraint(Sketcher.Constraint("DistanceX", 9, 1, 9, 2, 101.5862))
pad2 = doc.addObject("PartDesign::Pad", "Pad001")
body.addObject(pad2)
pad2.Profile = sketch4
pad2.Length = Q("3.5 in")

# Sketch on XZ plane
sketch5 = doc.addObject("Sketcher::SketchObject", "Sketch004")
body.addObject(sketch5)
sketch5.AttachmentSupport = (doc.XZ_Plane, [""])
sketch5.MapMode = "FlatFace"
sketch5.AttachmentOffset = App.Placement(App.Vector(0, 0, -5), App.Rotation())
add_polygon(sketch5, [(-485.0439, 76.4471), (88.3096, 76.4471), (88.3096, -517.9952), (-485.0439, -517.9952)])  # lines 0-3
sketch5.addConstraint(Sketcher.Constraint("Horizontal", 0))
sketch5.addConstraint(Sketcher.Constraint("Vertical", 1))
sketch5.addConstraint(Sketcher.Constraint("Horizontal", 2))
sketch5.addConstraint(Sketcher.Constraint("Vertical", 3))
sketch5.addConstraint(Sketcher.Constraint("DistanceX", 0, 1, 0, 2, 573.3535))
sketch5.addConstraint(Sketcher.Constraint("DistanceY", 1, 2, 1, 1, 594.4423))
sketch5.addConstraint(Sketcher.Constraint("DistanceY", 1, 2, -1, 1, Q("20.3935 in")))
sketch5.addConstraint(Sketcher.Constraint("DistanceX", -1, 1, 0, 2, 88.3096))
pocket3 = doc.addObject("PartDesign::Pocket", "Pocket002")
body.addObject(pocket3)
pocket3.Profile = sketch5
pocket3.Length = 5
pocket3.Reversed = True

doc.recompute()
